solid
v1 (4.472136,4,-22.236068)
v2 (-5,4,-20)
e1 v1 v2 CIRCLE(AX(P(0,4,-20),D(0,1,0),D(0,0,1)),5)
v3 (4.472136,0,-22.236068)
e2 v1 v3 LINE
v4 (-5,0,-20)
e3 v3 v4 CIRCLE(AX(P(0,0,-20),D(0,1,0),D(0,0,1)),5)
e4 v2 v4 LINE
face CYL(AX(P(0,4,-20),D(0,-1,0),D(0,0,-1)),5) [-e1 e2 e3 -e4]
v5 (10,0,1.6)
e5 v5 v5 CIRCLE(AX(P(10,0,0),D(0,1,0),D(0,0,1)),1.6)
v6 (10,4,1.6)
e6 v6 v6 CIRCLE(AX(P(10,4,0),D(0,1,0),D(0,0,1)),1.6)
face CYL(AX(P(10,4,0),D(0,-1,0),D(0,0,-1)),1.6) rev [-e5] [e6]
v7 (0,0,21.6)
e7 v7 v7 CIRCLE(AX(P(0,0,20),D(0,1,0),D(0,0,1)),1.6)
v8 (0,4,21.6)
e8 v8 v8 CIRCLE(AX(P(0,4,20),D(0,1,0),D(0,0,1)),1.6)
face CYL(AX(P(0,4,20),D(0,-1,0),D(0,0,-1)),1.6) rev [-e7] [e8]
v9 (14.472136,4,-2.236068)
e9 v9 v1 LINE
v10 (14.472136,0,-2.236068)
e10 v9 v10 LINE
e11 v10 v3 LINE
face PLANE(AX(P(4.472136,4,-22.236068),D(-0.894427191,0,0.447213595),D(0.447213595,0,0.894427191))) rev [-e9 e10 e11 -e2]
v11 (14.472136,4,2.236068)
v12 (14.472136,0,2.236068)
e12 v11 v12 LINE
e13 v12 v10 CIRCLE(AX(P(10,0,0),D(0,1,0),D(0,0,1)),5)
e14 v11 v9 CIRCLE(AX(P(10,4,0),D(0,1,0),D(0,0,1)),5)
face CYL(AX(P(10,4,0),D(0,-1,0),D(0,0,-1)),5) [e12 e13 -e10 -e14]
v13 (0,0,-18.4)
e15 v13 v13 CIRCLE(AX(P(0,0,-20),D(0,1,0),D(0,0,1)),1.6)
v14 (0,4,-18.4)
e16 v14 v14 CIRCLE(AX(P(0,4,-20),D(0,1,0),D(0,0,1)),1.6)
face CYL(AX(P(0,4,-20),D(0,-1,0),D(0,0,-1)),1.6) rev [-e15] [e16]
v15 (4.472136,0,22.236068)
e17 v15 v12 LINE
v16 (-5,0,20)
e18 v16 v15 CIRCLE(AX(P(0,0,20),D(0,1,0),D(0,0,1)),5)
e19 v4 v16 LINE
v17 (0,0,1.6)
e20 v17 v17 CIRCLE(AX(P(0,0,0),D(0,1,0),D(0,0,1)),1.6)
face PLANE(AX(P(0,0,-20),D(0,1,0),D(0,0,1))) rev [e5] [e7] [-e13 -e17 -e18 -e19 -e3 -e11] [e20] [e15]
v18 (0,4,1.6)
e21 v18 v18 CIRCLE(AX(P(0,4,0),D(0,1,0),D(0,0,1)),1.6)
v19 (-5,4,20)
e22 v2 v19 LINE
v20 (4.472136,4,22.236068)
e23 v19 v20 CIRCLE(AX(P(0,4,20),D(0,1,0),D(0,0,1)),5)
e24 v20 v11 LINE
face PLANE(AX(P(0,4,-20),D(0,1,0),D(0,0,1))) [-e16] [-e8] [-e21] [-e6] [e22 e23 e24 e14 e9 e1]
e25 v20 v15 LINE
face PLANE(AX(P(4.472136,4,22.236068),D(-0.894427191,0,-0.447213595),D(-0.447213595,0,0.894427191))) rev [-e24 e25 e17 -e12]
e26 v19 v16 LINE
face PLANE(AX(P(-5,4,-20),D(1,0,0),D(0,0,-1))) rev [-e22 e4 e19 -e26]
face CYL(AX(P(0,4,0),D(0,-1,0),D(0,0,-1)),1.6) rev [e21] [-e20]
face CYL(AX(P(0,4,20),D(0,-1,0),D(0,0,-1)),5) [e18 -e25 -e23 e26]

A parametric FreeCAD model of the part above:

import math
import FreeCAD as App
import Part
import Sketcher

doc = App.newDocument("Part")
params = doc.addObject("Spreadsheet::Sheet", "Params")
for row, (alias, value) in enumerate([
    ("sketch1_radius", "5 mm"),
    ("sketch1_diameter", "3.2 mm"),
    ("sketch1_height", "40 mm"),
    ("pad1_length", "4 mm"),
], start=1):
    params.set(f"A{row}", alias)
    params.set(f"B{row}", "=" + value)
    params.setAlias(f"B{row}", alias)

body = doc.addObject("PartDesign::Body", "Body")

# Sketch on XZ plane
sketch1 = body.newObject("Sketcher::SketchObject", "Sketch")
sketch1.AttachmentSupport = (doc.getObject("XZ_Plane"), [""])
sketch1.MapMode = "FlatFace"
sketch1.addGeometry([
    Part.LineSegment(App.Vector(-5, -20, 0), App.Vector(-5, 20, 0)),  # 0
    Part.ArcOfCircle(Part.Circle(App.Vector(0, 20, 0), App.Vector(0, 0, 1), 5), math.radians(26.565051), math.radians(180)),  # 1
    Part.LineSegment(App.Vector(4.472136, 22.236068, 0), App.Vector(14.472136, 2.236068, 0)),  # 2
    Part.ArcOfCircle(Part.Circle(App.Vector(10, 0, 0), App.Vector(0, 0, 1), 5), math.radians(-26.565051), math.radians(26.565051)),  # 3
    Part.LineSegment(App.Vector(14.472136, -2.236068, 0), App.Vector(4.472136, -22.236068, 0)),  # 4
    Part.ArcOfCircle(Part.Circle(App.Vector(0, -20, 0), App.Vector(0, 0, 1), 5), math.radians(180), math.radians(333.434949)),  # 5
    Part.Circle(App.Vector(0, 20, 0), App.Vector(0, 0, 1), 1.6),  # 6
    Part.Circle(App.Vector(0, 0, 0), App.Vector(0, 0, 1), 1.6),  # 7
    Part.Circle(App.Vector(0, -20, 0), App.Vector(0, 0, 1), 1.6),  # 8
    Part.Circle(App.Vector(10, 0, 0), App.Vector(0, 0, 1), 1.6),  # 9
], False)
sketch1.addConstraint([
    Sketcher.Constraint("Tangent", 0, 2, 1, 2),
    Sketcher.Constraint("Tangent", 1, 1, 2, 1),
    Sketcher.Constraint("Tangent", 2, 2, 3, 2),
    Sketcher.Constraint("Tangent", 3, 1, 4, 1),
    Sketcher.Constraint("Tangent", 4, 2, 5, 2),
    Sketcher.Constraint("Tangent", 5, 1, 0, 1),
    Sketcher.Constraint("Vertical", 0),
    Sketcher.Constraint("Coincident", 7, 3, -1, 1),
    Sketcher.Constraint("Coincident", 6, 3, 1, 3),
    Sketcher.Constraint("Coincident", 8, 3, 5, 3),
    Sketcher.Constraint("Coincident", 9, 3, 3, 3),
    Sketcher.Constraint("Equal", 1, 3),
    Sketcher.Constraint("Equal", 3, 5),
    Sketcher.Constraint("Equal", 6, 7),
    Sketcher.Constraint("Equal", 7, 8),
    Sketcher.Constraint("Equal", 8, 9),
    Sketcher.Constraint("Symmetric", 1, 3, 5, 3, -1, 1),
    Sketcher.Constraint("PointOnObject", 3, 3, -1),
    Sketcher.Constraint("Radius", 1, 5.0),
    Sketcher.Constraint("Diameter", 6, 3.2),
    Sketcher.Constraint("DistanceY", 0, 1, 0, 2, 40.0),
    Sketcher.Constraint("DistanceX", -1, 1, 3, 3, 10.0),
])
sketch1.setExpression("Constraints[18]", "Params.sketch1_radius")
sketch1.setExpression("Constraints[19]", "Params.sketch1_diameter")
sketch1.setExpression("Constraints[20]", "Params.sketch1_height")
pad1 = body.newObject("PartDesign::Pad", "Pad")
pad1.Profile = sketch1
pad1.setExpression("Length", "Params.pad1_length")
pad1.Reversed = True

doc.recompute()
